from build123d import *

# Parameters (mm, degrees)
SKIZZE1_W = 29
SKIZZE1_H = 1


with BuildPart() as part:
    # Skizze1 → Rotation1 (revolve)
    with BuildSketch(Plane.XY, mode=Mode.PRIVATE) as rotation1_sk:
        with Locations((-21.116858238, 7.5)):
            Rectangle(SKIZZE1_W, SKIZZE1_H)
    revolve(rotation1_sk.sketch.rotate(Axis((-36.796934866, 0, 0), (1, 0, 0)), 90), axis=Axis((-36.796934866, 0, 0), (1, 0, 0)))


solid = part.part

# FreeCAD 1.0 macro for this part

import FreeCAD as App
import Part
import Sketcher
Q = App.Units.Quantity


def add_polygon(sketch, points):
    """Adds a closed chain of lines whose ends are joined by coincident constraints."""
    first, n = sketch.GeometryCount, len(points)
    for a, b in zip(points, points[1:] + points[:1]):
        sketch.addGeometry(Part.LineSegment(App.Vector(*a, 0), App.Vector(*b, 0)), False)
    for i in range(n):
        sketch.addConstraint(Sketcher.Constraint("Coincident", first + i, 2, first + (i + 1) % n, 1))

doc = App.newDocument("Part")
params = doc.addObject("Spreadsheet::Sheet", "Params")
for row, (alias, value) in enumerate([
    ("sketch1_width", "29 mm"),
    ("sketch1_height", "1 mm"),
    ("revolution_angle", "360 deg"),
], start=1):
    params.set(f"A{row}", alias)
    params.set(f"B{row}", "=" + value)
    params.setAlias(f"B{row}", alias)

body = doc.addObject("PartDesign::Body", "Body")

sketch1 = doc.addObject("Sketcher::SketchObject", "Sketch")
body.addObject(sketch1)
sketch1.AttachmentSupport = (doc.XY_Plane, [""])
sketch1.MapMode = "FlatFace"
add_polygon(sketch1, [(-35.6, 8), (-35.6, 7), (-6.6, 7), (-6.6, 8)])
sketch1.addConstraint([
    Sketcher.Constraint("Vertical", 0),
    Sketcher.Constraint("Horizontal", 1),
    Sketcher.Constraint("Vertical", 2),
    Sketcher.Constraint("Horizontal", 3),
    Sketcher.Constraint("DistanceX", 1, 1, 1, 2, Q("29 mm")),
    Sketcher.Constraint("DistanceY", 0, 2, 0, 1, Q("1 mm")),
    Sketcher.Constraint("DistanceY", -1, 1, 0, 2, Q("7 mm")),
    Sketcher.Constraint("DistanceX", 0, 2, -1, 1, Q("35.616858 mm")),
])
sketch1.setExpression("Constraints[8]", "Params.sketch1_width")
sketch1.setExpression("Constraints[9]", "Params.sketch1_height")
revolution = doc.addObject("PartDesign::Revolution", "Revolution")
body.addObject(revolution)
revolution.Profile = sketch1
revolution.ReferenceAxis = (sketch1, ["H_Axis"])
revolution.setExpression("Angle", "Params.revolution_angle")

doc.recompute()
